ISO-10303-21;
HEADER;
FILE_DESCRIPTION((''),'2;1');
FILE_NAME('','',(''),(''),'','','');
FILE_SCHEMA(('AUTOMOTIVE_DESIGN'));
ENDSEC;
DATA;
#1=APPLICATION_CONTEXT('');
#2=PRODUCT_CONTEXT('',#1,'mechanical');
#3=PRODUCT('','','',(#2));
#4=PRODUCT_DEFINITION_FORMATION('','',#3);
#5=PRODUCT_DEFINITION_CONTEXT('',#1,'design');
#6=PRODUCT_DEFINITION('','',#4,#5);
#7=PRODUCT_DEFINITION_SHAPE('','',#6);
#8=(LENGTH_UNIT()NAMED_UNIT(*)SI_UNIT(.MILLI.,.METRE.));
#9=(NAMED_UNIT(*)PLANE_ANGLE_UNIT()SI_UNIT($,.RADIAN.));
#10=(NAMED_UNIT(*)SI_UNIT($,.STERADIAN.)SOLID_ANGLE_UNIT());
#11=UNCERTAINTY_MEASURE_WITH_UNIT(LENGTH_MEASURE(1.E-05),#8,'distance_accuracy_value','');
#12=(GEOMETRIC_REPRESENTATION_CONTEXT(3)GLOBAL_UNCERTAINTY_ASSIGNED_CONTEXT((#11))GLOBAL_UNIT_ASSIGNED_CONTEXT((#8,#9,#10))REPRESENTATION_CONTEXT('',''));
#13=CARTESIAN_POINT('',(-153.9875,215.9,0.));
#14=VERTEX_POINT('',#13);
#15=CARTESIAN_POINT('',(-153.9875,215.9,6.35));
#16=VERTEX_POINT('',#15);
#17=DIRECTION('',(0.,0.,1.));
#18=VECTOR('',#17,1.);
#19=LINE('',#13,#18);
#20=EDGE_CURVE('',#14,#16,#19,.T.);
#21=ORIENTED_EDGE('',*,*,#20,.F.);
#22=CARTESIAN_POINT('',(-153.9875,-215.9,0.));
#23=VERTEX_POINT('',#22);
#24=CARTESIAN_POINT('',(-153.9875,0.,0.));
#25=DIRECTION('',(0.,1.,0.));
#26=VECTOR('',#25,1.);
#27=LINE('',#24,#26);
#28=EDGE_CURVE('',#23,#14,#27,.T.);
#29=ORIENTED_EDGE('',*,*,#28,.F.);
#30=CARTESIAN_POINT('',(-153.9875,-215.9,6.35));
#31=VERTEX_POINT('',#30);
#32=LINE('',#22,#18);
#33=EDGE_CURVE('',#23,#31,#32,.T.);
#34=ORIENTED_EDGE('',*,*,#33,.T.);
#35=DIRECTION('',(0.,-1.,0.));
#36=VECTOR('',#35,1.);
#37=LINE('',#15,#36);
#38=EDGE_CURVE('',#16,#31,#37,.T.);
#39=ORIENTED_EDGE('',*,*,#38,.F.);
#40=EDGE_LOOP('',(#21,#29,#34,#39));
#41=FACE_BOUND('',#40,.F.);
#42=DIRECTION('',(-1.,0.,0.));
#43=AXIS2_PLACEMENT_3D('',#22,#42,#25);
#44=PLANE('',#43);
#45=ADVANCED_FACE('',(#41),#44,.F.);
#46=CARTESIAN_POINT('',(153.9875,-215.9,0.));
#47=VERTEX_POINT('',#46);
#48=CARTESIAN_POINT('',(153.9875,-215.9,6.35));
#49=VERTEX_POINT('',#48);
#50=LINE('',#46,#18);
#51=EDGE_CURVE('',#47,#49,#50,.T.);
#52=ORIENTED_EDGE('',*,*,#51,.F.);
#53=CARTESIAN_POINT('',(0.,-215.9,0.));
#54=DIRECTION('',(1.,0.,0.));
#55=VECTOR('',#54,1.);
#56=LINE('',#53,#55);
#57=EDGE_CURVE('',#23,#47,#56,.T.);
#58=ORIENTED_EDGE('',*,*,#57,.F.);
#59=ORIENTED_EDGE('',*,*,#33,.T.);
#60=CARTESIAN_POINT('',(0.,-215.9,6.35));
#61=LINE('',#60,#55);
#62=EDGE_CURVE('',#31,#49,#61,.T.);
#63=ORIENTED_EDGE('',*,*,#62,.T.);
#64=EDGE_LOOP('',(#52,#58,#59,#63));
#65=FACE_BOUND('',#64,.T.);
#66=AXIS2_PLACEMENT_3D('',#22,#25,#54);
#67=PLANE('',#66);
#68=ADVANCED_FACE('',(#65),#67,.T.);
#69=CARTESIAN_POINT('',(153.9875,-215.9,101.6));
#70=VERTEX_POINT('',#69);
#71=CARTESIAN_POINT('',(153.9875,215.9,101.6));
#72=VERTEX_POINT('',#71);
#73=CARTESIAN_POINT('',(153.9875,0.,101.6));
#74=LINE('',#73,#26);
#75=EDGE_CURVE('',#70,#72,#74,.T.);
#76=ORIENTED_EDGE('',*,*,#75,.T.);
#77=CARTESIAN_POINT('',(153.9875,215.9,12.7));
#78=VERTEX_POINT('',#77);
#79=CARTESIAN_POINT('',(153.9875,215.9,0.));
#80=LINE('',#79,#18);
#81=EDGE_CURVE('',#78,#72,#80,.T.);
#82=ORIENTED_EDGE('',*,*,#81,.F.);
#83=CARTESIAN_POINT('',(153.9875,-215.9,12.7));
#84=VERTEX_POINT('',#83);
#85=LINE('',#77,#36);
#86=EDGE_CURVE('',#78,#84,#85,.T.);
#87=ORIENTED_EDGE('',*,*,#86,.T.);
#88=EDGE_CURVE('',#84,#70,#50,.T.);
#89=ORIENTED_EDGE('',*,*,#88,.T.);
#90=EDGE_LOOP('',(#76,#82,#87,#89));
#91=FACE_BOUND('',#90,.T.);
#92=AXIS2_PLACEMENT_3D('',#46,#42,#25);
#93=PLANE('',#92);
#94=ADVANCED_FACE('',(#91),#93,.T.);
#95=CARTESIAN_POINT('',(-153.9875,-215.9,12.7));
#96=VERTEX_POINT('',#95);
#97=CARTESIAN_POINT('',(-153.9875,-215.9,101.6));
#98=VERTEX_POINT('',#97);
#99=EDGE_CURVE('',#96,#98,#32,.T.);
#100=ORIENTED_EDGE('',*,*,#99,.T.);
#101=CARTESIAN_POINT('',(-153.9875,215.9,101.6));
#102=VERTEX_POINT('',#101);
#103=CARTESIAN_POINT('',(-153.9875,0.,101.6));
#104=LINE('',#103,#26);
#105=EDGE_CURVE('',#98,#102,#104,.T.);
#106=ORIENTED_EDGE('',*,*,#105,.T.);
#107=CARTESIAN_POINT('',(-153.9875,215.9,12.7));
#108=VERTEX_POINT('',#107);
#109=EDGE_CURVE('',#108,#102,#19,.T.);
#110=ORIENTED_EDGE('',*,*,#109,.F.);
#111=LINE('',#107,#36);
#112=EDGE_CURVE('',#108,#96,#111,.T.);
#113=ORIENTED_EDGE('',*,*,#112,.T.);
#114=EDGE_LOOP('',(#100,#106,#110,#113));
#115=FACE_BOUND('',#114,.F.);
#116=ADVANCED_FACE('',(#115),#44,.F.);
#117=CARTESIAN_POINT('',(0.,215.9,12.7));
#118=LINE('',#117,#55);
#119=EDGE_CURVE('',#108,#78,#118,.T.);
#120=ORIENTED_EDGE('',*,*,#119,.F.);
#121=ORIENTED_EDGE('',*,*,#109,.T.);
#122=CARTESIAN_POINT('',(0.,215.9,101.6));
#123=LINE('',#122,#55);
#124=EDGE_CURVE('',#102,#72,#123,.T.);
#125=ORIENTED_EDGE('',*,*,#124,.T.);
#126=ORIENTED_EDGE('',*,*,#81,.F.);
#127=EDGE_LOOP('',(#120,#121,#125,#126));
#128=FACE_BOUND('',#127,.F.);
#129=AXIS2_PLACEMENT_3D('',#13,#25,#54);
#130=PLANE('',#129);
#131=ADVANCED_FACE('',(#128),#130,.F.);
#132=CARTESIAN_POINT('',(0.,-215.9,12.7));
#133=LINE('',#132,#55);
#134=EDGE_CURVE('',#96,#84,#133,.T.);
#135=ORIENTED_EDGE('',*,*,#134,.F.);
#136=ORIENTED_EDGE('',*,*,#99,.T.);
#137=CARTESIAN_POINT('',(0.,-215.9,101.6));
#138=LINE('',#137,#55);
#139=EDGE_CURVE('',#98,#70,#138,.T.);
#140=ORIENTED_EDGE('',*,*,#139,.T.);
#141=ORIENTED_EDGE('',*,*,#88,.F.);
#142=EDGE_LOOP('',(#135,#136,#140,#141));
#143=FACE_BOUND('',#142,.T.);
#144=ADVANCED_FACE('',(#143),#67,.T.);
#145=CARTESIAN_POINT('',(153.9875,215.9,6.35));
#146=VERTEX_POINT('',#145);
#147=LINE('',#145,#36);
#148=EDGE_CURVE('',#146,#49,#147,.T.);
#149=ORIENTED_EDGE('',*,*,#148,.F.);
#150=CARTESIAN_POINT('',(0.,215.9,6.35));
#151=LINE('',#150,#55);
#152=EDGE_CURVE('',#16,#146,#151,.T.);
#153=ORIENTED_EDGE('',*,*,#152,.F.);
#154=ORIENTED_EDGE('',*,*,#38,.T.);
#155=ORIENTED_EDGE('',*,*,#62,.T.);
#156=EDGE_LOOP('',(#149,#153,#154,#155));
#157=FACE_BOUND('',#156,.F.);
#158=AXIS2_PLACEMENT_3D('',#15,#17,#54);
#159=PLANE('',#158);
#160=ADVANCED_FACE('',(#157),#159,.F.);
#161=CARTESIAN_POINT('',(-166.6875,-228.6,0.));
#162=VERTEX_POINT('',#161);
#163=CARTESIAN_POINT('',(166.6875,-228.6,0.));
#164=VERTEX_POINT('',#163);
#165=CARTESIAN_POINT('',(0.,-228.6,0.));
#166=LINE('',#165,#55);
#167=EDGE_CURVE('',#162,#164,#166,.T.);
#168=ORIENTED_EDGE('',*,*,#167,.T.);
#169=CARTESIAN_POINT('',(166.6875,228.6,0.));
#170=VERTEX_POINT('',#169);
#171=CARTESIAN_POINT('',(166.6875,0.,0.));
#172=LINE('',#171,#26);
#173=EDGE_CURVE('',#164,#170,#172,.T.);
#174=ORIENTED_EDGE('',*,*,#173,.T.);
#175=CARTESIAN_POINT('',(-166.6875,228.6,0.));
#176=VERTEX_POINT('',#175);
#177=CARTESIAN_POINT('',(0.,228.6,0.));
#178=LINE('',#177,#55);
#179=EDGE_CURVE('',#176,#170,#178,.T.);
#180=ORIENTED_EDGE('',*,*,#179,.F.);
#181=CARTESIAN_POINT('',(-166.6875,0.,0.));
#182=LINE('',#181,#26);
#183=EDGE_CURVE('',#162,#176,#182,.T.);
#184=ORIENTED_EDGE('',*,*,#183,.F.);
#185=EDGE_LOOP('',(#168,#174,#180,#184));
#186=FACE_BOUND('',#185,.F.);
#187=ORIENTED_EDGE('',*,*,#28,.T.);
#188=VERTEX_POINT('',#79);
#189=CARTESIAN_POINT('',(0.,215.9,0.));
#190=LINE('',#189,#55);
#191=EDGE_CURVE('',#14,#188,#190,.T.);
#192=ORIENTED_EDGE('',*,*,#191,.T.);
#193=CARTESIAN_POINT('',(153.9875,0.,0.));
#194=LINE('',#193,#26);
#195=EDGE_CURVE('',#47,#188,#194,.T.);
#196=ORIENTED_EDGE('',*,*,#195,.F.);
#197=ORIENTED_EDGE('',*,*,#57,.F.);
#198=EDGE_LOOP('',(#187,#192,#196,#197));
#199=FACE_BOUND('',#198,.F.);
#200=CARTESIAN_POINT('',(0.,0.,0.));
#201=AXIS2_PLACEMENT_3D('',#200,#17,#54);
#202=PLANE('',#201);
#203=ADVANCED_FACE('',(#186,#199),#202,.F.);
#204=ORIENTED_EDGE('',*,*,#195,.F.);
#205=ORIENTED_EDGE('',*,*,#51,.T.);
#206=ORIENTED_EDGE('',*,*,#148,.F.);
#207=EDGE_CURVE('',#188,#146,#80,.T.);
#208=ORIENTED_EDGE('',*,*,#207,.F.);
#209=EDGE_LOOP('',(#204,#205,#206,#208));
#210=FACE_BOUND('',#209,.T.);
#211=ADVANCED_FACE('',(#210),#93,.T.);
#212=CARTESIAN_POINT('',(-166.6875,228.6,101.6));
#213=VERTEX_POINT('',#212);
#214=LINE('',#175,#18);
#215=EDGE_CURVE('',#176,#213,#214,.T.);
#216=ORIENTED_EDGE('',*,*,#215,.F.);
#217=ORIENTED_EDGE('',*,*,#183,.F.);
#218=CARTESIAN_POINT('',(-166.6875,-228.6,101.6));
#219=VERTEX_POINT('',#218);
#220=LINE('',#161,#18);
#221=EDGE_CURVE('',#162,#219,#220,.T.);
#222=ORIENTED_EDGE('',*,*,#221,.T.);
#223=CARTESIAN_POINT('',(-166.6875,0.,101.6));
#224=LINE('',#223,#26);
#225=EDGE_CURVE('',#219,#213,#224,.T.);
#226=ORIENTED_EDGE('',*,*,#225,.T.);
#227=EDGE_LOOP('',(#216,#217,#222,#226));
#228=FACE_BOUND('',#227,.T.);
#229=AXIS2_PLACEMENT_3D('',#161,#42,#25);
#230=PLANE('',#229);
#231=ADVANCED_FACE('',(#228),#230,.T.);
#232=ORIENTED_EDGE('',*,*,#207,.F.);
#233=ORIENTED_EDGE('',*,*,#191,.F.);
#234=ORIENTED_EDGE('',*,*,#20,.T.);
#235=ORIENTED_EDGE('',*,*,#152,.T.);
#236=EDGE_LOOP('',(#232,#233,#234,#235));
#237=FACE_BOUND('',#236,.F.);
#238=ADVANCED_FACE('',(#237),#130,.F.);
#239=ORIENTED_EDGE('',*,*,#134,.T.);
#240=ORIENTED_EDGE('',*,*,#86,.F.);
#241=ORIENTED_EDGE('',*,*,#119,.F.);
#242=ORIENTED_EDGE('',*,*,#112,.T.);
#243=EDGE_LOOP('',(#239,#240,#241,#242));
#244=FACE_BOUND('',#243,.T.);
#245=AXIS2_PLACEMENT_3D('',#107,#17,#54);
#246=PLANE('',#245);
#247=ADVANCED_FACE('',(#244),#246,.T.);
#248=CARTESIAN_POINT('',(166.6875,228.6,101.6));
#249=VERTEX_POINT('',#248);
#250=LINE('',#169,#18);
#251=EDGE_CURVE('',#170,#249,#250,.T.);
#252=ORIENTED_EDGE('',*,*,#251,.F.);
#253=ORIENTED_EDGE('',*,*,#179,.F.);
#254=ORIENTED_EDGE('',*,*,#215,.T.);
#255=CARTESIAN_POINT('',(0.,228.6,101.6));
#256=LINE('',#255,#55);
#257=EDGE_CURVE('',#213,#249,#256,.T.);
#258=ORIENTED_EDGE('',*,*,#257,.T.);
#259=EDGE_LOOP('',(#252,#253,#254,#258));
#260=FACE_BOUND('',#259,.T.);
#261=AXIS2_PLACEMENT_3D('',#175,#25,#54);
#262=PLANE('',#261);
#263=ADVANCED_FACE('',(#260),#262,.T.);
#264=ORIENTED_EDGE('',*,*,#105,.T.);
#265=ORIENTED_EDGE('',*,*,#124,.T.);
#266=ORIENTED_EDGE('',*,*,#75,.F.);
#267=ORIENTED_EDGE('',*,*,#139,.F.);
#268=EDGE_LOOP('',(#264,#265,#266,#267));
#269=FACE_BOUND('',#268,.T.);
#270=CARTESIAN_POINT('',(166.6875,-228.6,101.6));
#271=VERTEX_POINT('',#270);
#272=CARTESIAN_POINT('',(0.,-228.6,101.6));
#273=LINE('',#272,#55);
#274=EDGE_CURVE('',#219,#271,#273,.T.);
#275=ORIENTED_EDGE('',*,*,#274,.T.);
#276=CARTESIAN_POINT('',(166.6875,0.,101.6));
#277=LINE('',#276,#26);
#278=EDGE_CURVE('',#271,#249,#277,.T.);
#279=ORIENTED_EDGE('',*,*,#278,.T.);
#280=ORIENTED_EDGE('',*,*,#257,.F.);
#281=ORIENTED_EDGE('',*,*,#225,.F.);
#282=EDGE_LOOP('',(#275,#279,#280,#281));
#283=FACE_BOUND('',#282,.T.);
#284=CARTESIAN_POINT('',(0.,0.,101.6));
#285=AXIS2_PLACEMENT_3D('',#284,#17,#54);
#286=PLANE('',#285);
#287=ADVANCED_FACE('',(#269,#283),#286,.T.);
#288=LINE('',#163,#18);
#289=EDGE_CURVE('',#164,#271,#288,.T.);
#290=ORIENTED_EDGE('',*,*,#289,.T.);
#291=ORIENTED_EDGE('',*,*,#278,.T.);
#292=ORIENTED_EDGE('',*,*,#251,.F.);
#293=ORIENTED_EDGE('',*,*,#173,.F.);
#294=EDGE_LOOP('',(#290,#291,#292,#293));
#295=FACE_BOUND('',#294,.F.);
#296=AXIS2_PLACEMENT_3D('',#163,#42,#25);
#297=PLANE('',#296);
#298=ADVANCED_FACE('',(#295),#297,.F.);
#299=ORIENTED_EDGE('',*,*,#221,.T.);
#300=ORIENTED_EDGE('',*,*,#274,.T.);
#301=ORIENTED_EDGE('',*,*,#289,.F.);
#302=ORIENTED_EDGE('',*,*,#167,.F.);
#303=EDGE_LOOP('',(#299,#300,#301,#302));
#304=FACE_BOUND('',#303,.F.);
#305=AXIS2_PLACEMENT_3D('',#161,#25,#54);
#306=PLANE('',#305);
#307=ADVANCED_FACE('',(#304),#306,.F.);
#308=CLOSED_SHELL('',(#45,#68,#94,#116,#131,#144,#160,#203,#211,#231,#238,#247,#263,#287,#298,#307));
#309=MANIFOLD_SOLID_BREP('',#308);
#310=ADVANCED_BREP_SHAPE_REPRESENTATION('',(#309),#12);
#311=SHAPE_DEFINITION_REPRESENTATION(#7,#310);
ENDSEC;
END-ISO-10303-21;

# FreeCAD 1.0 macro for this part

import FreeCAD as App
import Part
import Sketcher

V = App.Vector
Q = App.Units.Quantity

doc = App.newDocument("Part")
params = doc.addObject("Spreadsheet::Sheet", "Params")
for row, (alias, value) in enumerate([
    ("sketch1_height", "18 in"),
    ("sketch1_height2", "17 in"),
    ("sketch1_width", "13.125 in"),
    ("pad1_length", "4 in"),
    ("sketch2_height", "0.25 in"),
    ("sketch2_width", "12.125 in"),
    ("pad2_length", "17 in"),
], start=1):
    params.set(f"A{row}", alias)
    params.set(f"B{row}", "=" + value)
    params.setAlias(f"B{row}", alias)

body = doc.addObject("PartDesign::Body", "Body")

# Sketch on XY plane
sketch1 = body.newObject("Sketcher::SketchObject", "Sketch")
sketch1.AttachmentSupport = (doc.getObject("XY_Plane"), [""])
sketch1.MapMode = "FlatFace"
sketch1.addGeometry([
    Part.LineSegment(V(-167, 229, 0), V(-167, -229, 0)),  # 0
    Part.LineSegment(V(-167, -229, 0), V(167, -229, 0)),  # 1
    Part.LineSegment(V(167, -229, 0), V(167, 229, 0)),  # 2
    Part.LineSegment(V(167, 229, 0), V(-167, 229, 0)),  # 3
    Part.LineSegment(V(154, -216, 0), V(-154, -216, 0)),  # 4
    Part.LineSegment(V(-154, -216, 0), V(-154, 216, 0)),  # 5
    Part.LineSegment(V(-154, 216, 0), V(154, 216, 0)),  # 6
    Part.LineSegment(V(154, 216, 0), V(154, -216, 0)),  # 7
], False)
sketch1.addConstraint([
    Sketcher.Constraint("Coincident", 0, 2, 1, 1),
    Sketcher.Constraint("Coincident", 1, 2, 2, 1),
    Sketcher.Constraint("Coincident", 2, 2, 3, 1),
    Sketcher.Constraint("Coincident", 3, 2, 0, 1),
    Sketcher.Constraint("Coincident", 4, 2, 5, 1),
    Sketcher.Constraint("Coincident", 5, 2, 6, 1),
    Sketcher.Constraint("Coincident", 6, 2, 7, 1),
    Sketcher.Constraint("Coincident", 7, 2, 4, 1),
    Sketcher.Constraint("Vertical", 0),
    Sketcher.Constraint("Horizontal", 1),
    Sketcher.Constraint("Vertical", 2),
    Sketcher.Constraint("Horizontal", 3),
    Sketcher.Constraint("Horizontal", 4),
    Sketcher.Constraint("Vertical", 5),
    Sketcher.Constraint("Horizontal", 6),
    Sketcher.Constraint("Vertical", 7),
    Sketcher.Constraint("Symmetric", 0, 2, 2, 2, -1, 1),
    Sketcher.Constraint("Symmetric", 4, 2, 6, 2, -1, 1),
    Sketcher.Constraint("DistanceY", 0, 2, 0, 1, Q("18 in")),
    Sketcher.Constraint("DistanceY", 5, 1, 5, 2, Q("17 in")),
    Sketcher.Constraint("DistanceX", 0, 2, 4, 2, Q("0.5 in")),
    Sketcher.Constraint("DistanceX", 1, 1, 1, 2, Q("13.125 in")),
])
sketch1.setExpression("Constraints[18]", "Params.sketch1_height")
sketch1.setExpression("Constraints[19]", "Params.sketch1_height2")
sketch1.setExpression("Constraints[21]", "Params.sketch1_width")
pad1 = body.newObject("PartDesign::Pad", "Pad")
pad1.Profile = sketch1
pad1.setExpression("Length", "Params.pad1_length")

# Sketch on XZ plane
sketch2 = body.newObject("Sketcher::SketchObject", "Sketch001")
sketch2.AttachmentSupport = (doc.getObject("XZ_Plane"), [""])
sketch2.MapMode = "FlatFace"
sketch2.AttachmentOffset = App.Placement(V(0, 0, -8.5 * 25.4), App.Rotation())
sketch2.addGeometry([
    Part.LineSegment(V(-154, 13, 0), V(-154, 6, 0)),
    Part.LineSegment(V(-154, 6, 0), V(154, 6, 0)),
    Part.LineSegment(V(154, 6, 0), V(154, 13, 0)),
    Part.LineSegment(V(154, 13, 0), V(-154, 13, 0)),
], False)
sketch2.addConstraint([
    Sketcher.Constraint("Coincident", 0, 2, 1, 1),
    Sketcher.Constraint("Coincident", 1, 2, 2, 1),
    Sketcher.Constraint("Coincident", 2, 2, 3, 1),
    Sketcher.Constraint("Coincident", 3, 2, 0, 1),
    Sketcher.Constraint("Vertical", 0),
    Sketcher.Constraint("Horizontal", 1),
    Sketcher.Constraint("Vertical", 2),
    Sketcher.Constraint("Horizontal", 3),
    Sketcher.Constraint("DistanceY", 0, 2, 0, 1, Q("0.25 in")),
    Sketcher.Constraint("DistanceY", -1, 1, 2, 2, Q("0.5 in")),
    Sketcher.Constraint("DistanceX", 1, 1, 1, 2, Q("12.125 in")),
    Sketcher.Constraint("DistanceX", 0, 2, -1, 1, Q("6.0625 in")),
])
sketch2.setExpression("Constraints[8]", "Params.sketch2_height")
sketch2.setExpression("Constraints[10]", "Params.sketch2_width")
pad2 = body.newObject("PartDesign::Pad", "Pad001")
pad2.Profile = sketch2
pad2.setExpression("Length", "Params.pad2_length")

doc.recompute()
